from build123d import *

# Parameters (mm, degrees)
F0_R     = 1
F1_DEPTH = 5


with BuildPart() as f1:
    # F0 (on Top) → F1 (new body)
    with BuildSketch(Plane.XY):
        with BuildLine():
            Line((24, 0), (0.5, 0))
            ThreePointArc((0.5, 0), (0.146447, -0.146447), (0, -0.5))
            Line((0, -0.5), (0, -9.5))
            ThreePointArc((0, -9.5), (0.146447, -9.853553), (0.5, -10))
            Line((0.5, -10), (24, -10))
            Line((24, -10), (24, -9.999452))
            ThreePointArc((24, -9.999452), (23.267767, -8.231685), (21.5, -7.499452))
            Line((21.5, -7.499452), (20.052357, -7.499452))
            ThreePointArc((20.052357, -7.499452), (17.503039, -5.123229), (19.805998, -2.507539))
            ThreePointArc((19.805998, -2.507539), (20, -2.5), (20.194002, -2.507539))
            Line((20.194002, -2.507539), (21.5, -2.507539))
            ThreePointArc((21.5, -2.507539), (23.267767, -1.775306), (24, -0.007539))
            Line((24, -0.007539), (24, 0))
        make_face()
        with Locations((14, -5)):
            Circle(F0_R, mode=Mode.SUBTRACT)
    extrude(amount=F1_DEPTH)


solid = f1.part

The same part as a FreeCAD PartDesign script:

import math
import FreeCAD as App
import Part
import Sketcher

doc = App.newDocument("Part")
body = doc.addObject("PartDesign::Body", "Body")

# Sketch on XY plane
sketch1 = body.newObject("Sketcher::SketchObject", "Sketch")
sketch1.AttachmentSupport = (doc.getObject("XY_Plane"), [""])
sketch1.MapMode = "FlatFace"
sketch1.addGeometry([
    Part.LineSegment(App.Vector(24, 0, 0), App.Vector(0.5, 0, 0)),  # 0
    Part.ArcOfCircle(Part.Circle(App.Vector(0.5, -0.5, 0), App.Vector(0, 0, 1), 0.5), math.radians(90), math.radians(180)),  # 1
    Part.LineSegment(App.Vector(0, -0.5, 0), App.Vector(0, -9.5, 0)),  # 2
    Part.ArcOfCircle(Part.Circle(App.Vector(0.5, -9.5, 0), App.Vector(0, 0, 1), 0.5), math.radians(-180), math.radians(-90)),  # 3
    Part.LineSegment(App.Vector(0.5, -10, 0), App.Vector(24, -10, 0)),  # 4
    Part.LineSegment(App.Vector(24, -10, 0), App.Vector(24, -9.9995, 0)),  # 5
    Part.ArcOfCircle(Part.Circle(App.Vector(21.5, -9.9995, 0), App.Vector(0, 0, 1), 2.5), math.radians(0), math.radians(90)),  # 6
    Part.LineSegment(App.Vector(21.5, -7.4995, 0), App.Vector(20.0524, -7.4995, 0)),  # 7
    Part.ArcOfCircle(Part.Circle(App.Vector(20, -5, 0), App.Vector(0, 0, 1), 2.5), math.radians(94), math.radians(271)),  # 8
    Part.ArcOfCircle(Part.Circle(App.Vector(20, -4.9999, 0), App.Vector(0, 0, 1), 2.4999), math.radians(85.55), math.radians(94.45)),  # 9
    Part.LineSegment(App.Vector(20.194, -2.5075, 0), App.Vector(21.5, -2.5075, 0)),  # 10
    Part.ArcOfCircle(Part.Circle(App.Vector(21.5, -0.0075, 0), App.Vector(0, 0, 1), 2.5), math.radians(-90), math.radians(0)),  # 11
    Part.LineSegment(App.Vector(24, -0.0075, 0), App.Vector(24, 0, 0)),  # 12
    Part.Circle(App.Vector(14, -5, 0), App.Vector(0, 0, 1), 1),  # 13
], False)
sketch1.addConstraint([
    Sketcher.Constraint("Coincident", 0, 2, 1, 1),
    Sketcher.Constraint("Coincident", 1, 2, 2, 1),
    Sketcher.Constraint("Coincident", 2, 2, 3, 1),
    Sketcher.Constraint("Coincident", 3, 2, 4, 1),
    Sketcher.Constraint("Coincident", 4, 2, 5, 1),
    Sketcher.Constraint("Tangent", 5, 2, 6, 1),
    Sketcher.Constraint("Tangent", 6, 2, 7, 1),
    Sketcher.Constraint("Coincident", 7, 2, 8, 2),
    Sketcher.Constraint("Coincident", 8, 1, 9, 2),
    Sketcher.Constraint("Coincident", 9, 1, 10, 1),
    Sketcher.Constraint("Tangent", 10, 2, 11, 1),
    Sketcher.Constraint("Tangent", 11, 2, 12, 1),
    Sketcher.Constraint("Coincident", 12, 2, 0, 1),
    Sketcher.Constraint("Horizontal", 0),
    Sketcher.Constraint("Vertical", 2),
    Sketcher.Constraint("Horizontal", 4),
    Sketcher.Constraint("Horizontal", 7),
    Sketcher.Constraint("Horizontal", 10),
    Sketcher.Constraint("Vertical", 12),
    Sketcher.Constraint("Equal", 1, 3),
    Sketcher.Constraint("Equal", 6, 8),
    Sketcher.Constraint("Equal", 8, 11),
    Sketcher.Constraint("PointOnObject", 0, 2, -1),
    Sketcher.Constraint("PointOnObject", 1, 2, -2),
    Sketcher.Constraint("Horizontal", 8, 3, 13, 3),
    Sketcher.Constraint("Horizontal", 3, 3, 2, 2),
    Sketcher.Constraint("Horizontal", 6, 3, 5, 2),
    Sketcher.Constraint("Horizontal", 8, 1, 9, 1),
    Sketcher.Constraint("Vertical", 8, 3, 9, 3),
    Sketcher.Constraint("Vertical", 6, 3, 11, 3),
    Sketcher.Constraint("Vertical", 3, 3, 0, 2),
    Sketcher.Constraint("Vertical", 0, 2, 3, 2),
    Sketcher.Constraint("Diameter", 13, 2.0),
    Sketcher.Constraint("Radius", 1, 0.500001),
    Sketcher.Constraint("Radius", 6, 2.5),
    Sketcher.Constraint("DistanceY", 2, 2, 2, 1, 9.0),
    Sketcher.Constraint("DistanceX", 0, 2, 0, 1, 23.5),
    Sketcher.Constraint("DistanceX", -1, 1, 8, 3, 20.0),
    Sketcher.Constraint("DistanceY", 8, 3, -1, 1, 5.0),
    Sketcher.Constraint("DistanceX", -1, 1, 13, 3, 14.0),
    Sketcher.Constraint("DistanceY", 3, 2, -1, 1, 10.0),
    Sketcher.Constraint("DistanceX", -1, 1, 9, 1, 20.194002),
    Sketcher.Constraint("Radius", 9, 2.499908),
    Sketcher.Constraint("DistanceY", 5, 1, 5, 2, 0.000548),
])
pad1 = body.newObject("PartDesign::Pad", "Pad")
pad1.Profile = sketch1
pad1.Length = 5

doc.recompute()
